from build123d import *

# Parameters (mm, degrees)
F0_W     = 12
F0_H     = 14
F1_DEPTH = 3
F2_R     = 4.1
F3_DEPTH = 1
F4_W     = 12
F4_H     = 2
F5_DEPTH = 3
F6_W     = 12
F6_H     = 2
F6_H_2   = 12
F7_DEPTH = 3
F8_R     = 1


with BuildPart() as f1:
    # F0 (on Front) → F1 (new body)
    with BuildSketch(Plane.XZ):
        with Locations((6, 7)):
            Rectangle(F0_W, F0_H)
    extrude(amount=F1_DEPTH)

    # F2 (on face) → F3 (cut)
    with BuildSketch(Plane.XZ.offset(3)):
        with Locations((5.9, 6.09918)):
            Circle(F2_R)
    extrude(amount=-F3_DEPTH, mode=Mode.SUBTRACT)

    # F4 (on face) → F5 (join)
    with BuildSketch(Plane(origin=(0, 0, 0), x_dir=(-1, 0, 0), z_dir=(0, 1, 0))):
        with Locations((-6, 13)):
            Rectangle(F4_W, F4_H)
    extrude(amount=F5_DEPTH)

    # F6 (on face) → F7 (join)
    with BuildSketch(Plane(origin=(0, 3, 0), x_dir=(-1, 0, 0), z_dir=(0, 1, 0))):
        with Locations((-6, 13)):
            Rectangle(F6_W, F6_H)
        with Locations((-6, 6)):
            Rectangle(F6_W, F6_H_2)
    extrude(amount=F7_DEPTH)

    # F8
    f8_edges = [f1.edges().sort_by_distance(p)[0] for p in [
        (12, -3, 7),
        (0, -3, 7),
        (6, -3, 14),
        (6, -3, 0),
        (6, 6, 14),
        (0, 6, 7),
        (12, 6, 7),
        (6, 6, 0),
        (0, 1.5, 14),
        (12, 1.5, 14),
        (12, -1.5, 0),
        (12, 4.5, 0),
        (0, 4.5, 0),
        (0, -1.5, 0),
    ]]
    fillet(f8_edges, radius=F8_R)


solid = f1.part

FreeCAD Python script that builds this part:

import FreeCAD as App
import Part
import Sketcher
Q = App.Units.Quantity


def edges_at(feature, points):
    """Names of the edges that pass closest to the given points."""
    edges = feature.Shape.Edges
    near = lambda p: min(range(len(edges)), key=lambda i: edges[i].distToShape(Part.Vertex(*p))[0])
    return sorted({f"Edge{near(p) + 1}" for p in points})

doc = App.newDocument("Part")
params = doc.addObject("Spreadsheet::Sheet", "Params")
for row, (alias, value) in enumerate([
    ("sketch1_width", "12 mm"),
    ("sketch1_height", "14 mm"),
    ("pad1_length", "3 mm"),
    ("sketch2_diameter", "8.2 mm"),
    ("pocket1_length", "1 mm"),
    ("sketch3_width", "12 mm"),
    ("sketch3_height", "2 mm"),
    ("pad2_length", "3 mm"),
    ("sketch4_width", "12 mm"),
    ("sketch4_height", "14 mm"),
    ("pad3_length", "3 mm"),
    ("fillet_radius", "1 mm"),
], start=1):
    params.set(f"A{row}", alias)
    params.set(f"B{row}", "=" + value)
    params.setAlias(f"B{row}", alias)

body = doc.addObject("PartDesign::Body", "Body")

# Sketch on XZ plane
sketch1 = body.newObject("Sketcher::SketchObject", "Sketch")
sketch1.AttachmentSupport = (doc.getObject("XZ_Plane"), [""])
sketch1.MapMode = "FlatFace"
sketch1.addGeometry([
    Part.LineSegment(App.Vector(0, 14, 0), App.Vector(0, 0, 0)),
    Part.LineSegment(App.Vector(0, 0, 0), App.Vector(12, 0, 0)),
    Part.LineSegment(App.Vector(12, 0, 0), App.Vector(12, 14, 0)),
    Part.LineSegment(App.Vector(12, 14, 0), App.Vector(0, 14, 0)),
], False)
sketch1.addConstraint([
    Sketcher.Constraint("Coincident", 0, 2, 1, 1),
    Sketcher.Constraint("Coincident", 1, 2, 2, 1),
    Sketcher.Constraint("Coincident", 2, 2, 3, 1),
    Sketcher.Constraint("Coincident", 3, 2, 0, 1),
    Sketcher.Constraint("Vertical", 0),
    Sketcher.Constraint("Horizontal", 1),
    Sketcher.Constraint("Vertical", 2),
    Sketcher.Constraint("Horizontal", 3),
    Sketcher.Constraint("Coincident", 0, 2, -1, 1),
    Sketcher.Constraint("DistanceX", 1, 1, 1, 2, Q("12 mm")),
    Sketcher.Constraint("DistanceY", 0, 2, 0, 1, Q("14 mm")),
])
sketch1.setExpression("Constraints[9]", "Params.sketch1_width")
sketch1.setExpression("Constraints[10]", "Params.sketch1_height")
pad1 = body.newObject("PartDesign::Pad", "Pad")
pad1.Profile = sketch1
pad1.setExpression("Length", "Params.pad1_length")

# Sketch on XZ plane
sketch2 = body.newObject("Sketcher::SketchObject", "Sketch001")
sketch2.AttachmentSupport = (doc.getObject("XZ_Plane"), [""])
sketch2.MapMode = "FlatFace"
sketch2.AttachmentOffset = App.Placement(App.Vector(0, 0, 3), App.Rotation())
sketch2.addGeometry(Part.Circle(App.Vector(5.9, 6.1, 0), App.Vector(0, 0, 1), 4.1), False)
sketch2.addConstraint([
    Sketcher.Constraint("Diameter", 0, Q("8.2 mm")),
    Sketcher.Constraint("DistanceX", -1, 1, 0, 3, Q("5.9 mm")),
    Sketcher.Constraint("DistanceY", -1, 1, 0, 3, Q("6.09918 mm")),
])
sketch2.setExpression("Constraints[0]", "Params.sketch2_diameter")
pocket1 = body.newObject("PartDesign::Pocket", "Pocket")
pocket1.Profile = sketch2
pocket1.setExpression("Length", "Params.pocket1_length")

# Sketch on XZ plane
sketch3 = body.newObject("Sketcher::SketchObject", "Sketch002")
sketch3.AttachmentSupport = (doc.getObject("XZ_Plane"), [""])
sketch3.MapMode = "FlatFace"
sketch3.addGeometry([
    Part.LineSegment(App.Vector(12, 14, 0), App.Vector(12, 12, 0)),
    Part.LineSegment(App.Vector(12, 12, 0), App.Vector(0, 12, 0)),
    Part.LineSegment(App.Vector(0, 12, 0), App.Vector(0, 14, 0)),
    Part.LineSegment(App.Vector(0, 14, 0), App.Vector(12, 14, 0)),
], False)
sketch3.addConstraint([
    Sketcher.Constraint("Coincident", 0, 2, 1, 1),
    Sketcher.Constraint("Coincident", 1, 2, 2, 1),
    Sketcher.Constraint("Coincident", 2, 2, 3, 1),
    Sketcher.Constraint("Coincident", 3, 2, 0, 1),
    Sketcher.Constraint("Vertical", 0),
    Sketcher.Constraint("Horizontal", 1),
    Sketcher.Constraint("Vertical", 2),
    Sketcher.Constraint("Horizontal", 3),
    Sketcher.Constraint("PointOnObject", 1, 2, -2),
    Sketcher.Constraint("DistanceX", 1, 2, 1, 1, Q("12 mm")),
    Sketcher.Constraint("DistanceY", 0, 2, 0, 1, Q("2 mm")),
    Sketcher.Constraint("DistanceY", -1, 1, 0, 2, Q("12 mm")),
])
sketch3.setExpression("Constraints[9]", "Params.sketch3_width")
sketch3.setExpression("Constraints[10]", "Params.sketch3_height")
pad2 = body.newObject("PartDesign::Pad", "Pad001")
pad2.Profile = sketch3
pad2.setExpression("Length", "Params.pad2_length")
pad2.Reversed = True

# Sketch on XZ plane
sketch4 = body.newObject("Sketcher::SketchObject", "Sketch003")
sketch4.AttachmentSupport = (doc.getObject("XZ_Plane"), [""])
sketch4.MapMode = "FlatFace"
sketch4.AttachmentOffset = App.Placement(App.Vector(0, 0, -3), App.Rotation())
sketch4.addGeometry([
    Part.LineSegment(App.Vector(12, 14, 0), App.Vector(12, 0, 0)),
    Part.LineSegment(App.Vector(12, 0, 0), App.Vector(0, 0, 0)),
    Part.LineSegment(App.Vector(0, 0, 0), App.Vector(0, 14, 0)),
    Part.LineSegment(App.Vector(0, 14, 0), App.Vector(12, 14, 0)),
], False)
sketch4.addConstraint([
    Sketcher.Constraint("Coincident", 0, 2, 1, 1),
    Sketcher.Constraint("Coincident", 1, 2, 2, 1),
    Sketcher.Constraint("Coincident", 2, 2, 3, 1),
    Sketcher.Constraint("Coincident", 3, 2, 0, 1),
    Sketcher.Constraint("Vertical", 0),
    Sketcher.Constraint("Horizontal", 1),
    Sketcher.Constraint("Vertical", 2),
    Sketcher.Constraint("Horizontal", 3),
    Sketcher.Constraint("Coincident", 1, 2, -1, 1),
    Sketcher.Constraint("DistanceX", 1, 2, 1, 1, Q("12 mm")),
    Sketcher.Constraint("DistanceY", 0, 2, 0, 1, Q("14 mm")),
])
sketch4.setExpression("Constraints[9]", "Params.sketch4_width")
sketch4.setExpression("Constraints[10]", "Params.sketch4_height")
pad3 = body.newObject("PartDesign::Pad", "Pad002")
pad3.Profile = sketch4
pad3.setExpression("Length", "Params.pad3_length")
pad3.Reversed = True
doc.recompute()

fillet = body.newObject("PartDesign::Fillet", "Fillet")
fillet.Base = (pad3, edges_at(pad3, [
    (12, -3, 7),
    (0, -3, 7),
    (6, -3, 14),
    (6, -3, 0),
    (6, 6, 14),
    (0, 6, 7),
    (12, 6, 7),
    (6, 6, 0),
    (0, 1.5, 14),
    (12, 1.5, 14),
    (12, -1.5, 0),
    (12, 4.5, 0),
    (0, 4.5, 0),
    (0, -1.5, 0),
]))
fillet.setExpression("Radius", "Params.fillet_radius")

doc.recompute()
